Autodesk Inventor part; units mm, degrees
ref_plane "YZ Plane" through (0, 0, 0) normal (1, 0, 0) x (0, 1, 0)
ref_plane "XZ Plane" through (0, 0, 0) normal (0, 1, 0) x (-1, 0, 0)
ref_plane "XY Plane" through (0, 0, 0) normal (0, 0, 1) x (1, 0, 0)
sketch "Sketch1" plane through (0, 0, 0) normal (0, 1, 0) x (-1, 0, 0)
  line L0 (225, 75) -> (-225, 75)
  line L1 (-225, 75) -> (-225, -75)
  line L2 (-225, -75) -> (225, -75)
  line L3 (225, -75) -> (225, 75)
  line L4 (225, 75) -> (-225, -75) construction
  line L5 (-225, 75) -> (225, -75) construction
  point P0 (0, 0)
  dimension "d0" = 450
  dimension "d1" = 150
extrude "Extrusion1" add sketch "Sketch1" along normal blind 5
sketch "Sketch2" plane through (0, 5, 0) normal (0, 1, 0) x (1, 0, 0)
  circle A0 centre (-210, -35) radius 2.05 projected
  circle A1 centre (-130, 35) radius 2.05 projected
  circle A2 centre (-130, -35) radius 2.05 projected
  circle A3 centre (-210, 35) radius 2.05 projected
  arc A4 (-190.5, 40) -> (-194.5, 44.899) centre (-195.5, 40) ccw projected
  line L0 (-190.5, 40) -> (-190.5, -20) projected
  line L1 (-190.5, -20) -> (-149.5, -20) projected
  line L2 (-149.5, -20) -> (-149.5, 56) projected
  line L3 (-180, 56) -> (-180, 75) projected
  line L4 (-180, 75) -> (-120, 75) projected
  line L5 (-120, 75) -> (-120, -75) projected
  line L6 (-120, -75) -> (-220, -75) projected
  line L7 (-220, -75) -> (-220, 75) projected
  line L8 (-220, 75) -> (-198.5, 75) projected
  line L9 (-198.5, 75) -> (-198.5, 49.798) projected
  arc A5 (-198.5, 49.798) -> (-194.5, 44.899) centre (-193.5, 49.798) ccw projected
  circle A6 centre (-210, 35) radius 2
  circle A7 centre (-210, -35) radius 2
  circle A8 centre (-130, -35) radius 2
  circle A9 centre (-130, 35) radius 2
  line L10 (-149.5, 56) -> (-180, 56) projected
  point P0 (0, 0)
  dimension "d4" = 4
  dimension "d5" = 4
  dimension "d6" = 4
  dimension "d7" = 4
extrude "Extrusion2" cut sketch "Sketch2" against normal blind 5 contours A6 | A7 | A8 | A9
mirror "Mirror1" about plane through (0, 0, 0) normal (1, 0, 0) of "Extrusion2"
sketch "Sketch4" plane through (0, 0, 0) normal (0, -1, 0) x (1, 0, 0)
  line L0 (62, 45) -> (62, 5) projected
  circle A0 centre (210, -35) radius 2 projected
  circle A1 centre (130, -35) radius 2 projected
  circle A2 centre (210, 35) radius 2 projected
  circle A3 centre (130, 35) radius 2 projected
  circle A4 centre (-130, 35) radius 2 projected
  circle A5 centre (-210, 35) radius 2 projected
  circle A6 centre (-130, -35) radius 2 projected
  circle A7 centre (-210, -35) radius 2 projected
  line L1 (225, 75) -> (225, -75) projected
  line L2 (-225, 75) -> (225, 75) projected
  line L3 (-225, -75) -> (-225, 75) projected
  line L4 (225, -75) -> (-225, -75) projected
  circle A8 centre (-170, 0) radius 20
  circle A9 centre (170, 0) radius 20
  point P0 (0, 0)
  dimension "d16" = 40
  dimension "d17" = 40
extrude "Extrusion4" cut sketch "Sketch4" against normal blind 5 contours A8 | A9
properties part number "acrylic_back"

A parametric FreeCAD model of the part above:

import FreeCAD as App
import Part
import Sketcher

V = App.Vector
Q = App.Units.Quantity

doc = App.newDocument("Part")
body = doc.addObject("PartDesign::Body", "Body")

sketch1 = body.newObject("Sketcher::SketchObject", "Sketch")
sketch1.AttachmentSupport = (doc.getObject("XZ_Plane"), [""])
sketch1.MapMode = "FlatFace"
sketch1.addGeometry([
    Part.LineSegment(V(-225, -75, 0), V(-225, 75, 0)),
    Part.LineSegment(V(-225, 75, 0), V(225, 75, 0)),
    Part.LineSegment(V(225, 75, 0), V(225, -75, 0)),
    Part.LineSegment(V(225, -75, 0), V(-225, -75, 0)),
], False)
sketch1.addConstraint([
    Sketcher.Constraint("Coincident", 0, 2, 1, 1),
    Sketcher.Constraint("Coincident", 1, 2, 2, 1),
    Sketcher.Constraint("Coincident", 2, 2, 3, 1),
    Sketcher.Constraint("Coincident", 3, 2, 0, 1),
    Sketcher.Constraint("Vertical", 0),
    Sketcher.Constraint("Horizontal", 1),
    Sketcher.Constraint("Vertical", 2),
    Sketcher.Constraint("Horizontal", 3),
    Sketcher.Constraint("Symmetric", 0, 2, 2, 2, -1, 1),
    Sketcher.Constraint("DistanceX", 1, 1, 1, 2, Q("450 mm")),
    Sketcher.Constraint("DistanceY", 0, 1, 0, 2, Q("150 mm")),
])
pad1 = body.newObject("PartDesign::Pad", "Pad")
pad1.Profile = sketch1
pad1.Length = 5
pad1.Reversed = True

sketch2 = body.newObject("Sketcher::SketchObject", "Sketch001")
sketch2.AttachmentSupport = (doc.getObject("XZ_Plane"), [""])
sketch2.MapMode = "FlatFace"
sketch2.AttachmentOffset = App.Placement(V(0, 0, -5), App.Rotation())
sketch2.addGeometry([
    Part.Circle(V(-210, -35, 0), V(0, 0, 1), 2),
    Part.Circle(V(-210, 35, 0), V(0, 0, 1), 2),
    Part.Circle(V(-130, 35, 0), V(0, 0, 1), 2),
    Part.Circle(V(-130, -35, 0), V(0, 0, 1), 2),
], False)
sketch2.addConstraint([
    Sketcher.Constraint("Equal", 0, 1),
    Sketcher.Constraint("Equal", 1, 2),
    Sketcher.Constraint("Equal", 2, 3),
    Sketcher.Constraint("Symmetric", 0, 3, 1, 3, -1),
    Sketcher.Constraint("Symmetric", 2, 3, 3, 3, -1),
    Sketcher.Constraint("Horizontal", 1, 3, 2, 3),
    Sketcher.Constraint("Diameter", 0, Q("4 mm")),
    Sketcher.Constraint("DistanceX", 0, 3, -1, 1, Q("210 mm")),
    Sketcher.Constraint("DistanceY", 0, 3, -1, 1, Q("35 mm")),
    Sketcher.Constraint("DistanceX", 2, 3, -1, 1, Q("130 mm")),
])
pocket1 = body.newObject("PartDesign::Pocket", "Pocket")
pocket1.Profile = sketch2
pocket1.Length = 5
pocket1.Reversed = True
doc.recompute()

mirrored = body.newObject("PartDesign::Mirrored", "Mirrored")
mirrored.Originals = [pocket1]
mirrored.MirrorPlane = (doc.getObject("YZ_Plane"), [""])
body.Tip = mirrored

sketch3 = body.newObject("Sketcher::SketchObject", "Sketch002")
sketch3.AttachmentSupport = (doc.getObject("XZ_Plane"), [""])
sketch3.MapMode = "FlatFace"
sketch3.addGeometry([
    Part.Circle(V(-170, 0, 0), V(0, 0, 1), 20),
    Part.Circle(V(170, 0, 0), V(0, 0, 1), 20),
], False)
sketch3.addConstraint([
    Sketcher.Constraint("Equal", 0, 1),
    Sketcher.Constraint("Symmetric", 0, 3, 1, 3, -1, 1),
    Sketcher.Constraint("PointOnObject", 0, 3, -1),
    Sketcher.Constraint("Diameter", 0, Q("40 mm")),
    Sketcher.Constraint("DistanceX", 0, 3, -1, 1, Q("170 mm")),
])
pocket2 = body.newObject("PartDesign::Pocket", "Pocket001")
pocket2.Profile = sketch3
pocket2.Length = 5

doc.recompute()
